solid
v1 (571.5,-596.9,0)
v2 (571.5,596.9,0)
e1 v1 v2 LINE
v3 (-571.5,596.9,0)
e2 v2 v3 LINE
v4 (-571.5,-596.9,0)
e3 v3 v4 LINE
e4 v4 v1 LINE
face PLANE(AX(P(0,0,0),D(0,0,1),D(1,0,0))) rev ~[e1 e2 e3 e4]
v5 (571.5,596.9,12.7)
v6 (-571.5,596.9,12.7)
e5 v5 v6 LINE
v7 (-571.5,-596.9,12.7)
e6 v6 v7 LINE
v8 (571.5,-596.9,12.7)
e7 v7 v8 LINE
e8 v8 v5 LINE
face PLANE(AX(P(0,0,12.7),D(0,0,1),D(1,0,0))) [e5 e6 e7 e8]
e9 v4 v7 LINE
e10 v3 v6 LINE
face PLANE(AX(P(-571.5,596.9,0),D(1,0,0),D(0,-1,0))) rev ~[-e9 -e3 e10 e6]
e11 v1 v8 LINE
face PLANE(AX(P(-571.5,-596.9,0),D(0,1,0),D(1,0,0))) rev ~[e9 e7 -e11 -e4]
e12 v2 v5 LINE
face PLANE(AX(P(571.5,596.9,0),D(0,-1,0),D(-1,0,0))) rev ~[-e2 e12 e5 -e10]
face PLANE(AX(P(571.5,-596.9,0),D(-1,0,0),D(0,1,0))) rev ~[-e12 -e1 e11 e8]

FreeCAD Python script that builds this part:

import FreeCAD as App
import Part
import Sketcher
from FreeCAD import Vector
Q = App.Units.Quantity

doc = App.newDocument("Part")
params = doc.addObject("Spreadsheet::Sheet", "Params")
for row, (alias, value) in enumerate([
    ("sketch1_width", "45 in"),
    ("sketch1_height", "47 in"),
    ("pad1_length", "0.5 in"),
], start=1):
    params.set(f"A{row}", alias)
    params.set(f"B{row}", "=" + value)
    params.setAlias(f"B{row}", alias)

body = doc.addObject("PartDesign::Body", "Body")

sketch1 = body.newObject("Sketcher::SketchObject", "Sketch")
sketch1.AttachmentSupport = (doc.getObject("XY_Plane"), [""])
sketch1.MapMode = "FlatFace"
sketch1.addGeometry([
    Part.LineSegment(Vector(-572, 597, 0), Vector(-572, -597, 0)),
    Part.LineSegment(Vector(-572, -597, 0), Vector(572, -597, 0)),
    Part.LineSegment(Vector(572, -597, 0), Vector(572, 597, 0)),
    Part.LineSegment(Vector(572, 597, 0), Vector(-572, 597, 0)),
], False)
sketch1.addConstraint([
    Sketcher.Constraint("Coincident", 0, 2, 1, 1),
    Sketcher.Constraint("Coincident", 1, 2, 2, 1),
    Sketcher.Constraint("Coincident", 2, 2, 3, 1),
    Sketcher.Constraint("Coincident", 3, 2, 0, 1),
    Sketcher.Constraint("Vertical", 0),
    Sketcher.Constraint("Horizontal", 1),
    Sketcher.Constraint("Vertical", 2),
    Sketcher.Constraint("Horizontal", 3),
    Sketcher.Constraint("Symmetric", 0, 2, 2, 2, -1, 1),
    Sketcher.Constraint("DistanceX", 1, 1, 1, 2, Q("45 in")),
    Sketcher.Constraint("DistanceY", 0, 2, 0, 1, Q("47 in")),
])
sketch1.setExpression("Constraints[9]", "Params.sketch1_width")
sketch1.setExpression("Constraints[10]", "Params.sketch1_height")
pad1 = body.newObject("PartDesign::Pad", "Pad")
pad1.Profile = sketch1
pad1.setExpression("Length", "Params.pad1_length")

doc.recompute()
